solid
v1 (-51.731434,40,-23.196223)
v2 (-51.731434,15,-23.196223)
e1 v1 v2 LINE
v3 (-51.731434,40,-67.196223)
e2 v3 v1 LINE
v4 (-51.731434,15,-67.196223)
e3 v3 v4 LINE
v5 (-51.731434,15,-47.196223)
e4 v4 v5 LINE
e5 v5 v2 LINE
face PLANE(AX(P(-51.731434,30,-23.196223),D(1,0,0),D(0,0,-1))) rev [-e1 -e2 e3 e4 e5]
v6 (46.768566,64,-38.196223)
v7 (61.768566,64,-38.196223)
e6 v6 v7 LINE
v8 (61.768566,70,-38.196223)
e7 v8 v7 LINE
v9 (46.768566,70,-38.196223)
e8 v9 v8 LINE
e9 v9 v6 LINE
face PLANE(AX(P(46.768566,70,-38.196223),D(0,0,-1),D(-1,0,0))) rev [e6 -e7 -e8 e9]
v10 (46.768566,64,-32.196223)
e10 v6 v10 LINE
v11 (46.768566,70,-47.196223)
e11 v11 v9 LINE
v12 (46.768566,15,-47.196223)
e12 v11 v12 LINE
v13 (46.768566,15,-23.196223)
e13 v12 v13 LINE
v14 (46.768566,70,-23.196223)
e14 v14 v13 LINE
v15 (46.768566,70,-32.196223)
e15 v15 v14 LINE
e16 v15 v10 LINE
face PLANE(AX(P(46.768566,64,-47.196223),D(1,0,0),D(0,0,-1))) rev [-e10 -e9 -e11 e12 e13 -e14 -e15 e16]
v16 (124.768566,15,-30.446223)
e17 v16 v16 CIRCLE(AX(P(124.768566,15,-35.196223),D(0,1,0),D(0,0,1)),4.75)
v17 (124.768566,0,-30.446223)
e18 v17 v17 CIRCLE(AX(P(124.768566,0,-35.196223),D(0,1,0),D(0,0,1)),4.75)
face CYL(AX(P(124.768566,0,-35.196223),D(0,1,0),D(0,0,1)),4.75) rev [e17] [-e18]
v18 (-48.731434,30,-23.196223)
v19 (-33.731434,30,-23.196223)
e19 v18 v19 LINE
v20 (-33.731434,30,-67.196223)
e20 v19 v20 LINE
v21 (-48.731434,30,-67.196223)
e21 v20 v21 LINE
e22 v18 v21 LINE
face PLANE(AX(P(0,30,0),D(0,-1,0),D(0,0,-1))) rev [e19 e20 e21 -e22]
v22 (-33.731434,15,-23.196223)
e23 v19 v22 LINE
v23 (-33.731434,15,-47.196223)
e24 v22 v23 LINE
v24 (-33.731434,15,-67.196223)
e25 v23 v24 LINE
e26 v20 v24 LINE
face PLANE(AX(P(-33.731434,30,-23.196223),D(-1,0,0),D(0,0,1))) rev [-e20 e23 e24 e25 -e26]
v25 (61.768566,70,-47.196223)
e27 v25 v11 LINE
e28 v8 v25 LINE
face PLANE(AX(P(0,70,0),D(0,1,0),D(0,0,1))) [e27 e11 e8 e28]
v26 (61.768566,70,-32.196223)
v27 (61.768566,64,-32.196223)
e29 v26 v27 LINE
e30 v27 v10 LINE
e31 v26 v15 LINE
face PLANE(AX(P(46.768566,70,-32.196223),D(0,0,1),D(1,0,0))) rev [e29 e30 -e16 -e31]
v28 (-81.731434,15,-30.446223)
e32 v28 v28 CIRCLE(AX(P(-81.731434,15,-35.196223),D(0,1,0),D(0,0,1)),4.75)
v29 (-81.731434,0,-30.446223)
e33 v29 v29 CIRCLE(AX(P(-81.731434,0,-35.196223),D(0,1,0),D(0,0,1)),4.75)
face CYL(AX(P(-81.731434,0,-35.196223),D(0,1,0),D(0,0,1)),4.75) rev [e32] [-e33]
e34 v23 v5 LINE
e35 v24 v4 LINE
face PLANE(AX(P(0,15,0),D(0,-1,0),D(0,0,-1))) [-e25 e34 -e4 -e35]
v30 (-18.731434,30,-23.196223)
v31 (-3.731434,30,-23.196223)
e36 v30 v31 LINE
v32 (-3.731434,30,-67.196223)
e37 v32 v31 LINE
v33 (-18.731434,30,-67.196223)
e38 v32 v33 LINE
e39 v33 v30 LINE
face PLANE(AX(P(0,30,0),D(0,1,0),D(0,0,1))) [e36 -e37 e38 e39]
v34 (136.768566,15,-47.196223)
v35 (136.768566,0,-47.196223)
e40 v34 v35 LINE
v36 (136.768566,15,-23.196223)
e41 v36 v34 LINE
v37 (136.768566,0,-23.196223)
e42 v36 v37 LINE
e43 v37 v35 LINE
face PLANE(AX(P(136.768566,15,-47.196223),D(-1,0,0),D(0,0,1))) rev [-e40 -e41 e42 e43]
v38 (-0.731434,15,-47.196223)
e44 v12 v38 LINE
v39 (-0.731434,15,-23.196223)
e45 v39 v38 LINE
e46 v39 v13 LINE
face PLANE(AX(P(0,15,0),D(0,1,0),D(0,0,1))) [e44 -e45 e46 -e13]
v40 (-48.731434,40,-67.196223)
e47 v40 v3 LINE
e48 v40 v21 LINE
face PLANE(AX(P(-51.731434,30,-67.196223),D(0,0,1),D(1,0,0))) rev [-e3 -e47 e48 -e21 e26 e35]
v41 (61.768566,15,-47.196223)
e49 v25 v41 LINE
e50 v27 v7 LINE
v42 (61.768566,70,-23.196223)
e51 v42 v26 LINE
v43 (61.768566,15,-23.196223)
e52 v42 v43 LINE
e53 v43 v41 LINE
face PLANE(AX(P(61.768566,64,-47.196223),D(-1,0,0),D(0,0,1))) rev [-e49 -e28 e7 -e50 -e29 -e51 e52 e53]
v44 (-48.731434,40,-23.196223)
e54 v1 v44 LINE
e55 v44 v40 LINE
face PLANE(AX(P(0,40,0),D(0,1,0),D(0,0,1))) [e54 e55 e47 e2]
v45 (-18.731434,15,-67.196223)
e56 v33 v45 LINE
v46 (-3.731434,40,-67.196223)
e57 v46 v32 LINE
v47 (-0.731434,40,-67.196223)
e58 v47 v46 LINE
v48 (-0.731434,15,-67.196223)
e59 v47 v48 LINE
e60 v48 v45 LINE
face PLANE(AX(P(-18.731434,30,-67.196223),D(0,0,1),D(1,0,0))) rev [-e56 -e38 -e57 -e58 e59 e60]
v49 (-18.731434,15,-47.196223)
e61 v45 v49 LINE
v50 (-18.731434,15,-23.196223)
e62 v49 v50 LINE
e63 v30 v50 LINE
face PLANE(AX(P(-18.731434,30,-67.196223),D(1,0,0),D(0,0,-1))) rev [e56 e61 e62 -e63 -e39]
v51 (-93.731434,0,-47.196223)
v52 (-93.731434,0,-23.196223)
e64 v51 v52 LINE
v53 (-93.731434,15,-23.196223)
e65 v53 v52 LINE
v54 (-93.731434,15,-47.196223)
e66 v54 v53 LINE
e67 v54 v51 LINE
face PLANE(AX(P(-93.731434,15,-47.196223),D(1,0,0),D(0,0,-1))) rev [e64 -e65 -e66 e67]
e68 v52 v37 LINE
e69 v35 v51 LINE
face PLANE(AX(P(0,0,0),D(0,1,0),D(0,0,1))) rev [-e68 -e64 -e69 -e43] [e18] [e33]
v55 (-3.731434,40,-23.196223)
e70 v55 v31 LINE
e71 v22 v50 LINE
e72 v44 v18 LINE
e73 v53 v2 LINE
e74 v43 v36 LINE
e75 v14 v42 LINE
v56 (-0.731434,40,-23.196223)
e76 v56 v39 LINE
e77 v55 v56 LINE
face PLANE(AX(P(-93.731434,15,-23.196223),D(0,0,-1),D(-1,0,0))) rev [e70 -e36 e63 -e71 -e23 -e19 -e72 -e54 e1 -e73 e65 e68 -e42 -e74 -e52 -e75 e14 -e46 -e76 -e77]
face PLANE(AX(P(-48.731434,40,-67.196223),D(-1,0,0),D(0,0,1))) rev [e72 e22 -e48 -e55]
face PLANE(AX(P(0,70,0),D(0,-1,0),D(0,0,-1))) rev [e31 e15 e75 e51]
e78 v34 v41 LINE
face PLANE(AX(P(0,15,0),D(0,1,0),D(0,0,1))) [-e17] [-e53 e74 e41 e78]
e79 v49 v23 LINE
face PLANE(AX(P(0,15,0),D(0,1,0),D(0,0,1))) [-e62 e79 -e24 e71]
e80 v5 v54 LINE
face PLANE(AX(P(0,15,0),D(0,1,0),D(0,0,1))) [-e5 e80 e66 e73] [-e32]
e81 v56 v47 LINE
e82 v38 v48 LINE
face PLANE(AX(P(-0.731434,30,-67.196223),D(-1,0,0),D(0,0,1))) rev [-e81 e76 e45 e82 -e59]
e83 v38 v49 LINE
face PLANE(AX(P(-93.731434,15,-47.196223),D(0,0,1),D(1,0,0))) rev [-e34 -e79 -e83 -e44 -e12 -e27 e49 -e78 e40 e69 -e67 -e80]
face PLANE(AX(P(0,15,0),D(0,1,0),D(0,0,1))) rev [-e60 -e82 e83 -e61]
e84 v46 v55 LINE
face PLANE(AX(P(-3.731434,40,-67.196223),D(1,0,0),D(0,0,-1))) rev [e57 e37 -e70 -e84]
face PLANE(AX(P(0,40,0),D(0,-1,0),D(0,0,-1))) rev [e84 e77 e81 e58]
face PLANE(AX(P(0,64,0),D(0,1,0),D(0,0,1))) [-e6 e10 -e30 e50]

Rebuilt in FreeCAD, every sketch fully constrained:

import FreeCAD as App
import Part
import Sketcher
Q = App.Units.Quantity


def add_polygon(sketch, points):
    """Adds a closed chain of lines whose ends are joined by coincident constraints."""
    first, n = sketch.GeometryCount, len(points)
    for a, b in zip(points, points[1:] + points[:1]):
        sketch.addGeometry(Part.LineSegment(App.Vector(*a, 0), App.Vector(*b, 0)), False)
    for i in range(n):
        sketch.addConstraint(Sketcher.Constraint("Coincident", first + i, 2, first + (i + 1) % n, 1))

doc = App.newDocument("Part")
body = doc.addObject("PartDesign::Body", "Body")

# Sketch on XZ plane
sketch1 = body.newObject("Sketcher::SketchObject", "Sketch")
sketch1.AttachmentSupport = (doc.getObject("XZ_Plane"), [""])
sketch1.MapMode = "FlatFace"
add_polygon(sketch1, [(-93.731434, -47.196223), (-93.731434, -23.196223), (136.768566, -23.196223), (136.768566, -47.196223)])  # lines 0-3
sketch1.addConstraint(Sketcher.Constraint("Vertical", 0))
sketch1.addConstraint(Sketcher.Constraint("Horizontal", 1))
sketch1.addConstraint(Sketcher.Constraint("Vertical", 2))
sketch1.addConstraint(Sketcher.Constraint("Horizontal", 3))
sketch1.addConstraint(Sketcher.Constraint("DistanceY", 0, 1, 0, 2, Q("24 mm")))
sketch1.addConstraint(Sketcher.Constraint("DistanceX", 1, 1, 1, 2, Q("230.5 mm")))
sketch1.addConstraint(Sketcher.Constraint("DistanceX", 0, 2, -1, 1, Q("93.731434 mm")))
sketch1.addConstraint(Sketcher.Constraint("DistanceY", 0, 2, -1, 1, Q("23.196223 mm")))
pad1 = body.newObject("PartDesign::Pad", "Pad")
pad1.Profile = sketch1
pad1.Length = 15
pad1.Reversed = True

# Sketch on XZ plane
sketch2 = body.newObject("Sketcher::SketchObject", "Sketch001")
sketch2.AttachmentSupport = (doc.getObject("XZ_Plane"), [""])
sketch2.MapMode = "FlatFace"
sketch2.AttachmentOffset = App.Placement(App.Vector(0, 0, -15), App.Rotation())
sketch2.addGeometry(Part.Circle(App.Vector(-81.731434, -35.196223, 0), App.Vector(0, 0, 1), 4.75), False)
sketch2.addGeometry(Part.Circle(App.Vector(124.768566, -35.196223, 0), App.Vector(0, 0, 1), 4.75), False)
sketch2.addConstraint(Sketcher.Constraint("Equal", 0, 1))
sketch2.addConstraint(Sketcher.Constraint("Horizontal", 0, 3, 1, 3))
sketch2.addConstraint(Sketcher.Constraint("Diameter", 0, Q("9.5 mm")))
sketch2.addConstraint(Sketcher.Constraint("DistanceX", 0, 3, 1, 3, Q("206.5 mm")))
sketch2.addConstraint(Sketcher.Constraint("DistanceX", 0, 3, -1, 1, Q("81.731434 mm")))
sketch2.addConstraint(Sketcher.Constraint("DistanceY", 0, 3, -1, 1, Q("35.196223 mm")))
pocket1 = body.newObject("PartDesign::Pocket", "Pocket")
pocket1.Profile = sketch2
pocket1.Length = 15
pocket1.Reversed = True

# Sketch on XZ plane
sketch3 = body.newObject("Sketcher::SketchObject", "Sketch002")
sketch3.AttachmentSupport = (doc.getObject("XZ_Plane"), [""])
sketch3.MapMode = "FlatFace"
sketch3.AttachmentOffset = App.Placement(App.Vector(0, 0, -15), App.Rotation())
add_polygon(sketch3, [(-51.731434, -67.196223), (-51.731434, -23.196223), (-33.731434, -23.196223), (-33.731434, -67.196223)])  # lines 0-3
add_polygon(sketch3, [(-18.731434, -67.196223), (-18.731434, -23.196223), (-0.731434, -23.196223), (-0.731434, -67.196223)])  # lines 4-7
sketch3.addConstraint(Sketcher.Constraint("Vertical", 0))
sketch3.addConstraint(Sketcher.Constraint("Horizontal", 1))
sketch3.addConstraint(Sketcher.Constraint("Vertical", 2))
sketch3.addConstraint(Sketcher.Constraint("Horizontal", 3))
sketch3.addConstraint(Sketcher.Constraint("Vertical", 4))
sketch3.addConstraint(Sketcher.Constraint("Horizontal", 5))
sketch3.addConstraint(Sketcher.Constraint("Vertical", 6))
sketch3.addConstraint(Sketcher.Constraint("Horizontal", 7))
sketch3.addConstraint(Sketcher.Constraint("Horizontal", 1, 2, 4, 2))
sketch3.addConstraint(Sketcher.Constraint("Horizontal", 3, 2, 6, 2))
sketch3.addConstraint(Sketcher.Constraint("Equal", 3, 5))
sketch3.addConstraint(Sketcher.Constraint("DistanceX", 1, 1, 1, 2, Q("18 mm")))
sketch3.addConstraint(Sketcher.Constraint("DistanceY", 0, 1, 0, 2, Q("44 mm")))
sketch3.addConstraint(Sketcher.Constraint("DistanceX", 1, 2, 4, 2, Q("15 mm")))
sketch3.addConstraint(Sketcher.Constraint("DistanceX", 0, 2, -1, 1, Q("51.731434 mm")))
sketch3.addConstraint(Sketcher.Constraint("DistanceY", 0, 2, -1, 1, Q("23.196223 mm")))
pad2 = body.newObject("PartDesign::Pad", "Pad001")
pad2.Profile = sketch3
pad2.Length = 15
pad2.Reversed = True

# Sketch on XZ plane
sketch4 = body.newObject("Sketcher::SketchObject", "Sketch003")
sketch4.AttachmentSupport = (doc.getObject("XZ_Plane"), [""])
sketch4.MapMode = "FlatFace"
sketch4.AttachmentOffset = App.Placement(App.Vector(0, 0, -15), App.Rotation())
add_polygon(sketch4, [(46.768566, -47.196223), (46.768566, -23.196223), (61.768566, -23.196223), (61.768566, -47.196223)])  # lines 0-3
sketch4.addConstraint(Sketcher.Constraint("Vertical", 0))
sketch4.addConstraint(Sketcher.Constraint("Horizontal", 1))
sketch4.addConstraint(Sketcher.Constraint("Vertical", 2))
sketch4.addConstraint(Sketcher.Constraint("Horizontal", 3))
sketch4.addConstraint(Sketcher.Constraint("DistanceX", 1, 1, 1, 2, Q("15 mm")))
sketch4.addConstraint(Sketcher.Constraint("DistanceY", 0, 1, 0, 2, Q("24 mm")))
sketch4.addConstraint(Sketcher.Constraint("DistanceX", -1, 1, 0, 2, Q("46.768566 mm")))
sketch4.addConstraint(Sketcher.Constraint("DistanceY", 0, 2, -1, 1, Q("23.196223 mm")))
pad3 = body.newObject("PartDesign::Pad", "Pad002")
pad3.Profile = sketch4
pad3.Length = 49
pad3.Reversed = True

# Sketch on XZ plane
sketch5 = body.newObject("Sketcher::SketchObject", "Sketch004")
sketch5.AttachmentSupport = (doc.getObject("XZ_Plane"), [""])
sketch5.MapMode = "FlatFace"
sketch5.AttachmentOffset = App.Placement(App.Vector(0, 0, -64), App.Rotation())
add_polygon(sketch5, [(46.768566, -47.196223), (46.768566, -38.196223), (61.768566, -38.196223), (61.768566, -47.196223)])  # lines 0-3
add_polygon(sketch5, [(46.768566, -32.196223), (46.768566, -23.196223), (61.768566, -23.196223), (61.768566, -32.196223)])  # lines 4-7
sketch5.addConstraint(Sketcher.Constraint("Vertical", 0))
sketch5.addConstraint(Sketcher.Constraint("Horizontal", 1))
sketch5.addConstraint(Sketcher.Constraint("Vertical", 2))
sketch5.addConstraint(Sketcher.Constraint("Horizontal", 3))
sketch5.addConstraint(Sketcher.Constraint("Vertical", 4))
sketch5.addConstraint(Sketcher.Constraint("Horizontal", 5))
sketch5.addConstraint(Sketcher.Constraint("Vertical", 6))
sketch5.addConstraint(Sketcher.Constraint("Horizontal", 7))
sketch5.addConstraint(Sketcher.Constraint("Vertical", 3, 2, 4, 2))
sketch5.addConstraint(Sketcher.Constraint("Vertical", 2, 2, 5, 2))
sketch5.addConstraint(Sketcher.Constraint("Equal", 2, 4))
sketch5.addConstraint(Sketcher.Constraint("DistanceX", 1, 1, 1, 2, Q("15 mm")))
sketch5.addConstraint(Sketcher.Constraint("DistanceY", 0, 1, 0, 2, Q("9 mm")))
sketch5.addConstraint(Sketcher.Constraint("DistanceY", 0, 2, 4, 2, Q("15 mm")))
sketch5.addConstraint(Sketcher.Constraint("DistanceX", -1, 1, 0, 2, Q("46.768566 mm")))
sketch5.addConstraint(Sketcher.Constraint("DistanceY", 0, 2, -1, 1, Q("38.196223 mm")))
pad4 = body.newObject("PartDesign::Pad", "Pad003")
pad4.Profile = sketch5
pad4.Length = 6
pad4.Reversed = True

# Sketch on XZ plane
sketch6 = body.newObject("Sketcher::SketchObject", "Sketch005")
sketch6.AttachmentSupport = (doc.getObject("XZ_Plane"), [""])
sketch6.MapMode = "FlatFace"
sketch6.AttachmentOffset = App.Placement(App.Vector(0, 0, -30), App.Rotation())
add_polygon(sketch6, [(-51.731434, -67.196223), (-51.731434, -23.196223), (-48.731434, -23.196223), (-48.731434, -67.196223)])  # lines 0-3
add_polygon(sketch6, [(-3.731434, -67.196223), (-3.731434, -23.196223), (-0.731434, -23.196223), (-0.731434, -67.196223)])  # lines 4-7
sketch6.addConstraint(Sketcher.Constraint("Vertical", 0))
sketch6.addConstraint(Sketcher.Constraint("Horizontal", 1))
sketch6.addConstraint(Sketcher.Constraint("Vertical", 2))
sketch6.addConstraint(Sketcher.Constraint("Horizontal", 3))
sketch6.addConstraint(Sketcher.Constraint("Vertical", 4))
sketch6.addConstraint(Sketcher.Constraint("Horizontal", 5))
sketch6.addConstraint(Sketcher.Constraint("Vertical", 6))
sketch6.addConstraint(Sketcher.Constraint("Horizontal", 7))
sketch6.addConstraint(Sketcher.Constraint("Horizontal", 1, 2, 4, 2))
sketch6.addConstraint(Sketcher.Constraint("Horizontal", 3, 2, 6, 2))
sketch6.addConstraint(Sketcher.Constraint("Equal", 3, 5))
sketch6.addConstraint(Sketcher.Constraint("DistanceX", 1, 1, 1, 2, Q("3 mm")))
sketch6.addConstraint(Sketcher.Constraint("DistanceY", 0, 1, 0, 2, Q("44 mm")))
sketch6.addConstraint(Sketcher.Constraint("DistanceX", 1, 2, 4, 2, Q("45 mm")))
sketch6.addConstraint(Sketcher.Constraint("DistanceX", 0, 2, -1, 1, Q("51.731434 mm")))
sketch6.addConstraint(Sketcher.Constraint("DistanceY", 0, 2, -1, 1, Q("23.196223 mm")))
pad5 = body.newObject("PartDesign::Pad", "Pad004")
pad5.Profile = sketch6
pad5.Length = 10
pad5.Reversed = True

doc.recompute()
